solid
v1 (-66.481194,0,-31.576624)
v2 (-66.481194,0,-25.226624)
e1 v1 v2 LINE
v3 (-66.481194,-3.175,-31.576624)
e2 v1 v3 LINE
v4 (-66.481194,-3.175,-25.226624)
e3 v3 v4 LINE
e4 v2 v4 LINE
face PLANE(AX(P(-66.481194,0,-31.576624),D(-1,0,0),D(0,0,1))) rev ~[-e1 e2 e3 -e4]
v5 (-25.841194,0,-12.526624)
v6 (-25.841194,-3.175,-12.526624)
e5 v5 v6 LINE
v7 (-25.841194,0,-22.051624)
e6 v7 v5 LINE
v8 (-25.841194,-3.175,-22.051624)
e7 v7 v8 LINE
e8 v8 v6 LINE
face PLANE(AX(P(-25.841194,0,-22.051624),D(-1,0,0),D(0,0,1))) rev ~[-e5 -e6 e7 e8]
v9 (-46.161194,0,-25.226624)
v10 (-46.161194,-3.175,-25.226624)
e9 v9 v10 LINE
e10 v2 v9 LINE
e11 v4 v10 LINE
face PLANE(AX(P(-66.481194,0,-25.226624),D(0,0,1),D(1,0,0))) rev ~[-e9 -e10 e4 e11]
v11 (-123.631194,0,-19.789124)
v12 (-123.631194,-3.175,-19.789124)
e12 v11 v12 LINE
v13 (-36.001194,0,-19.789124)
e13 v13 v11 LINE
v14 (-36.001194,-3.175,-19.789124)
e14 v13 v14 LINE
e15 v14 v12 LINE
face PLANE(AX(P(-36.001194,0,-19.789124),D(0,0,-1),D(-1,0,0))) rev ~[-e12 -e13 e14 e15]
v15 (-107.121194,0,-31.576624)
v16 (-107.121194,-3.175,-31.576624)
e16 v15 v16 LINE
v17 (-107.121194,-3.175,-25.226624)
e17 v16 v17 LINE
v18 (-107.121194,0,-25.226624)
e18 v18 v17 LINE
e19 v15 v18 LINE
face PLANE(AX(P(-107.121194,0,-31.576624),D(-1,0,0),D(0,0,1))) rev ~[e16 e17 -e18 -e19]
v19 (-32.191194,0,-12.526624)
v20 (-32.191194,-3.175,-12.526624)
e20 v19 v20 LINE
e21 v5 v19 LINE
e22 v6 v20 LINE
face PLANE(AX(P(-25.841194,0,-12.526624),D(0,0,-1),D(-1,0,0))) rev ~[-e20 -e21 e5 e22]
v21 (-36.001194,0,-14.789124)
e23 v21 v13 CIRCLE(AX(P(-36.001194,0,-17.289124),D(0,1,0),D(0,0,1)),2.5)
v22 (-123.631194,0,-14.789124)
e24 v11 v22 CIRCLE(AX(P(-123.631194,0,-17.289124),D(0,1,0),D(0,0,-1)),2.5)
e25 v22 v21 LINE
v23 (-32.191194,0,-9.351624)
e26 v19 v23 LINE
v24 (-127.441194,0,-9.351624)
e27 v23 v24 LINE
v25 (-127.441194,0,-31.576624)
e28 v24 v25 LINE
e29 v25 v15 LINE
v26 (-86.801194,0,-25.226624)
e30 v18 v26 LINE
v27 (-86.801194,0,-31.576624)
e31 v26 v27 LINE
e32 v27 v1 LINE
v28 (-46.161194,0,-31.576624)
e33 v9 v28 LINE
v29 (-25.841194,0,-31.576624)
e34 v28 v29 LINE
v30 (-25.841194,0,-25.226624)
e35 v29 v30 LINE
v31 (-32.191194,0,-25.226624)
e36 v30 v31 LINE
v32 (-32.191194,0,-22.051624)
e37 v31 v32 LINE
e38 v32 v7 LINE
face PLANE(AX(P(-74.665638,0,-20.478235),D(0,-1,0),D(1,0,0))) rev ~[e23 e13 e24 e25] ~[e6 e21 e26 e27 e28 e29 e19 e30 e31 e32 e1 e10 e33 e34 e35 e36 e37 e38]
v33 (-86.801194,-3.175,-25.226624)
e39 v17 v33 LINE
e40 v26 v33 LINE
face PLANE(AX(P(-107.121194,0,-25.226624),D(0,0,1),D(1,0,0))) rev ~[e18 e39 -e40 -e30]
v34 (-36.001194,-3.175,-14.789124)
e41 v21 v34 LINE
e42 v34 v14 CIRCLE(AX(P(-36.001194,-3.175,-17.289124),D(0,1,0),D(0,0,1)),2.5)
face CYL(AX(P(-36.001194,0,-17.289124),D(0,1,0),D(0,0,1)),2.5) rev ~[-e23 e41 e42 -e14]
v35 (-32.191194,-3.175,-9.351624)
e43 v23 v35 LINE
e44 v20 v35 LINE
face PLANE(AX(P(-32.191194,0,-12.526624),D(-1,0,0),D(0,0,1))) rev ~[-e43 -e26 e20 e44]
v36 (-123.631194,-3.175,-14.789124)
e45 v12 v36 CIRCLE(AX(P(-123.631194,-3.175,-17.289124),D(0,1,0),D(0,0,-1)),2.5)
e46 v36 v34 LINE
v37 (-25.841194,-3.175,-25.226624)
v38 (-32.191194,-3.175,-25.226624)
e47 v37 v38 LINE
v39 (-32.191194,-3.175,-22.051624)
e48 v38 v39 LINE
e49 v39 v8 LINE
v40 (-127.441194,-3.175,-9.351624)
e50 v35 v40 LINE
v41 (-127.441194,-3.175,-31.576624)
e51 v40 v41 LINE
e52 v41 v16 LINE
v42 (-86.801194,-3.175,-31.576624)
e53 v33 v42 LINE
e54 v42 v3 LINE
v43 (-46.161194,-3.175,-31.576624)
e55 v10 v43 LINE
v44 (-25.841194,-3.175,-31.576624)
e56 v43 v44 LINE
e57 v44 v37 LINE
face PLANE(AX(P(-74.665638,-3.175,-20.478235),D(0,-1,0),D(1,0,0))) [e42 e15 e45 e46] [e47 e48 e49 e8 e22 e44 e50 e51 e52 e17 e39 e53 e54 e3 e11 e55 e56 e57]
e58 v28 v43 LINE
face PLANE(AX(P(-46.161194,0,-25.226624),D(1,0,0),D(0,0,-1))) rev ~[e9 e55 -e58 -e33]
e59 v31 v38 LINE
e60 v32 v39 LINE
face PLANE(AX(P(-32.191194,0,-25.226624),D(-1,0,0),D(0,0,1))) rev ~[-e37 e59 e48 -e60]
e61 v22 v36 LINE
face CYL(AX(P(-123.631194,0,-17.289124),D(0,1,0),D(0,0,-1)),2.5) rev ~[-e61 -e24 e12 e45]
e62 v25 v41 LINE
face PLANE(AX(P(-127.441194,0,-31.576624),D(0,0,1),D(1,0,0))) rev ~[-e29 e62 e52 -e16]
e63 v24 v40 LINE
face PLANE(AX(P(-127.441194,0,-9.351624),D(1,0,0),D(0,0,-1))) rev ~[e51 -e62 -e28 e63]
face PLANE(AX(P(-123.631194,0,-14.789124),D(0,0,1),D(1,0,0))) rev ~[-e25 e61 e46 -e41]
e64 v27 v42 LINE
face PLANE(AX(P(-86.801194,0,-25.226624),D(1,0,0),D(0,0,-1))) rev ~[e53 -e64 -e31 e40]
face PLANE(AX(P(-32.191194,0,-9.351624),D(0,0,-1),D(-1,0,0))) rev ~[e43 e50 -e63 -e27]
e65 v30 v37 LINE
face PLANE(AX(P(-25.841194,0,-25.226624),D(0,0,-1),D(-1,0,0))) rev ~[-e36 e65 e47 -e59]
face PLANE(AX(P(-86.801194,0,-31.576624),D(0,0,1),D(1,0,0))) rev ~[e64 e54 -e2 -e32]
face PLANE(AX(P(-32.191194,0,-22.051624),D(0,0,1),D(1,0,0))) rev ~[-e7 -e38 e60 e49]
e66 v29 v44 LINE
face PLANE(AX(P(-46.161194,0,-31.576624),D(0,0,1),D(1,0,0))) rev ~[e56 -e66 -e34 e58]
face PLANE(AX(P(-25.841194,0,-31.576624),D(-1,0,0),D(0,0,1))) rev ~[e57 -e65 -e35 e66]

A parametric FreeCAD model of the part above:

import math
import FreeCAD as App
import Part
import Sketcher
Q = App.Units.Quantity

doc = App.newDocument("Part")
body = doc.addObject("PartDesign::Body", "Body")

# Sketch on XZ plane
sketch1 = body.newObject("Sketcher::SketchObject", "Sketch")
sketch1.AttachmentSupport = (doc.getObject("XZ_Plane"), [""])
sketch1.MapMode = "FlatFace"
sketch1.addGeometry(Part.LineSegment(App.Vector(-46.2, -31.6, 0), App.Vector(-25.8, -31.6, 0)), False)
sketch1.addGeometry(Part.LineSegment(App.Vector(-25.8, -31.6, 0), App.Vector(-25.8, -25.2, 0)), False)
sketch1.addGeometry(Part.LineSegment(App.Vector(-25.8, -25.2, 0), App.Vector(-32.2, -25.2, 0)), False)
sketch1.addGeometry(Part.LineSegment(App.Vector(-32.2, -25.2, 0), App.Vector(-32.2, -22.1, 0)), False)
sketch1.addGeometry(Part.LineSegment(App.Vector(-32.2, -22.1, 0), App.Vector(-25.8, -22.1, 0)), False)
sketch1.addGeometry(Part.LineSegment(App.Vector(-25.8, -22.1, 0), App.Vector(-25.8, -12.5, 0)), False)
sketch1.addGeometry(Part.LineSegment(App.Vector(-25.8, -12.5, 0), App.Vector(-32.2, -12.5, 0)), False)
sketch1.addGeometry(Part.LineSegment(App.Vector(-32.2, -12.5, 0), App.Vector(-32.2, -9.4, 0)), False)
sketch1.addGeometry(Part.LineSegment(App.Vector(-32.2, -9.4, 0), App.Vector(-127.4, -9.4, 0)), False)
sketch1.addGeometry(Part.LineSegment(App.Vector(-127.4, -9.4, 0), App.Vector(-127.4, -31.6, 0)), False)
sketch1.addGeometry(Part.LineSegment(App.Vector(-127.4, -31.6, 0), App.Vector(-107.1, -31.6, 0)), False)
sketch1.addGeometry(Part.LineSegment(App.Vector(-107.1, -31.6, 0), App.Vector(-107.1, -25.2, 0)), False)
sketch1.addGeometry(Part.LineSegment(App.Vector(-107.1, -25.2, 0), App.Vector(-86.8, -25.2, 0)), False)
sketch1.addGeometry(Part.LineSegment(App.Vector(-86.8, -25.2, 0), App.Vector(-86.8, -31.6, 0)), False)
sketch1.addGeometry(Part.LineSegment(App.Vector(-86.8, -31.6, 0), App.Vector(-66.5, -31.6, 0)), False)
sketch1.addGeometry(Part.LineSegment(App.Vector(-66.5, -31.6, 0), App.Vector(-66.5, -25.2, 0)), False)
sketch1.addGeometry(Part.LineSegment(App.Vector(-66.5, -25.2, 0), App.Vector(-46.2, -25.2, 0)), False)
sketch1.addGeometry(Part.LineSegment(App.Vector(-46.2, -25.2, 0), App.Vector(-46.2, -31.6, 0)), False)
sketch1.addGeometry(Part.LineSegment(App.Vector(-36, -19.8, 0), App.Vector(-123.6, -19.8, 0)), False)
sketch1.addGeometry(Part.ArcOfCircle(Part.Circle(App.Vector(-123.6, -17.3, 0), App.Vector(0, 0, 1), 2.5), math.radians(90), math.radians(270)), False)
sketch1.addGeometry(Part.LineSegment(App.Vector(-123.6, -14.8, 0), App.Vector(-36, -14.8, 0)), False)
sketch1.addGeometry(Part.ArcOfCircle(Part.Circle(App.Vector(-36, -17.3, 0), App.Vector(0, 0, 1), 2.5), math.radians(-90), math.radians(90)), False)
sketch1.addConstraint(Sketcher.Constraint("Coincident", 0, 2, 1, 1))
sketch1.addConstraint(Sketcher.Constraint("Coincident", 1, 2, 2, 1))
sketch1.addConstraint(Sketcher.Constraint("Coincident", 2, 2, 3, 1))
sketch1.addConstraint(Sketcher.Constraint("Coincident", 3, 2, 4, 1))
sketch1.addConstraint(Sketcher.Constraint("Coincident", 4, 2, 5, 1))
sketch1.addConstraint(Sketcher.Constraint("Coincident", 5, 2, 6, 1))
sketch1.addConstraint(Sketcher.Constraint("Coincident", 6, 2, 7, 1))
sketch1.addConstraint(Sketcher.Constraint("Coincident", 7, 2, 8, 1))
sketch1.addConstraint(Sketcher.Constraint("Coincident", 8, 2, 9, 1))
sketch1.addConstraint(Sketcher.Constraint("Coincident", 9, 2, 10, 1))
sketch1.addConstraint(Sketcher.Constraint("Coincident", 10, 2, 11, 1))
sketch1.addConstraint(Sketcher.Constraint("Coincident", 11, 2, 12, 1))
sketch1.addConstraint(Sketcher.Constraint("Coincident", 12, 2, 13, 1))
sketch1.addConstraint(Sketcher.Constraint("Coincident", 13, 2, 14, 1))
sketch1.addConstraint(Sketcher.Constraint("Coincident", 14, 2, 15, 1))
sketch1.addConstraint(Sketcher.Constraint("Coincident", 15, 2, 16, 1))
sketch1.addConstraint(Sketcher.Constraint("Coincident", 16, 2, 17, 1))
sketch1.addConstraint(Sketcher.Constraint("Coincident", 17, 2, 0, 1))
sketch1.addConstraint(Sketcher.Constraint("Tangent", 18, 2, 19, 2))
sketch1.addConstraint(Sketcher.Constraint("Tangent", 19, 1, 20, 1))
sketch1.addConstraint(Sketcher.Constraint("Tangent", 20, 2, 21, 2))
sketch1.addConstraint(Sketcher.Constraint("Tangent", 21, 1, 18, 1))
sketch1.addConstraint(Sketcher.Constraint("Horizontal", 0))
sketch1.addConstraint(Sketcher.Constraint("Vertical", 1))
sketch1.addConstraint(Sketcher.Constraint("Horizontal", 2))
sketch1.addConstraint(Sketcher.Constraint("Vertical", 3))
sketch1.addConstraint(Sketcher.Constraint("Horizontal", 4))
sketch1.addConstraint(Sketcher.Constraint("Vertical", 5))
sketch1.addConstraint(Sketcher.Constraint("Horizontal", 6))
sketch1.addConstraint(Sketcher.Constraint("Vertical", 7))
sketch1.addConstraint(Sketcher.Constraint("Horizontal", 8))
sketch1.addConstraint(Sketcher.Constraint("Vertical", 9))
sketch1.addConstraint(Sketcher.Constraint("Horizontal", 10))
sketch1.addConstraint(Sketcher.Constraint("Vertical", 11))
sketch1.addConstraint(Sketcher.Constraint("Horizontal", 12))
sketch1.addConstraint(Sketcher.Constraint("Vertical", 13))
sketch1.addConstraint(Sketcher.Constraint("Horizontal", 14))
sketch1.addConstraint(Sketcher.Constraint("Vertical", 15))
sketch1.addConstraint(Sketcher.Constraint("Horizontal", 16))
sketch1.addConstraint(Sketcher.Constraint("Vertical", 17))
sketch1.addConstraint(Sketcher.Constraint("Horizontal", 18))
sketch1.addConstraint(Sketcher.Constraint("Horizontal", 20))
sketch1.addConstraint(Sketcher.Constraint("Horizontal", 0, 2, 9, 2))
sketch1.addConstraint(Sketcher.Constraint("Horizontal", 2, 2, 11, 2))
sketch1.addConstraint(Sketcher.Constraint("Horizontal", 10, 2, 13, 2))
sketch1.addConstraint(Sketcher.Constraint("Horizontal", 12, 2, 15, 2))
sketch1.addConstraint(Sketcher.Constraint("Vertical", 1, 2, 4, 2))
sketch1.addConstraint(Sketcher.Constraint("Vertical", 3, 2, 6, 2))
sketch1.addConstraint(Sketcher.Constraint("Equal", 0, 10))
sketch1.addConstraint(Sketcher.Constraint("Equal", 10, 12))
sketch1.addConstraint(Sketcher.Constraint("Equal", 12, 14))
sketch1.addConstraint(Sketcher.Constraint("Equal", 14, 16))
sketch1.addConstraint(Sketcher.Constraint("Equal", 6, 1))
sketch1.addConstraint(Sketcher.Constraint("Equal", 3, 7))
sketch1.addConstraint(Sketcher.Constraint("DistanceX", 0, 1, 0, 2, Q("0.8 in")))
sketch1.addConstraint(Sketcher.Constraint("DistanceX", 2, 2, 2, 1, Q("0.25 in")))
sketch1.addConstraint(Sketcher.Constraint("DistanceX", 18, 2, 18, 1, Q("3.45 in")))
sketch1.addConstraint(Sketcher.Constraint("DistanceX", 21, 3, 0, 2, Q("0.4 in")))
sketch1.addConstraint(Sketcher.Constraint("DistanceY", 1, 2, 5, 2, Q("0.5 in")))
sketch1.addConstraint(Sketcher.Constraint("DistanceY", 3, 1, 3, 2, Q("0.125 in")))
sketch1.addConstraint(Sketcher.Constraint("Radius", 19, 2.5))
sketch1.addConstraint(Sketcher.Constraint("DistanceY", 0, 2, 21, 3, Q("0.5625 in")))
sketch1.addConstraint(Sketcher.Constraint("DistanceX", 19, 3, -1, 1, 123.631194))
sketch1.addConstraint(Sketcher.Constraint("DistanceY", 19, 3, -1, 1, 17.289124))
pad1 = body.newObject("PartDesign::Pad", "Pad")
pad1.Profile = sketch1
pad1.Length = Q("0.125 in")

doc.recompute()
